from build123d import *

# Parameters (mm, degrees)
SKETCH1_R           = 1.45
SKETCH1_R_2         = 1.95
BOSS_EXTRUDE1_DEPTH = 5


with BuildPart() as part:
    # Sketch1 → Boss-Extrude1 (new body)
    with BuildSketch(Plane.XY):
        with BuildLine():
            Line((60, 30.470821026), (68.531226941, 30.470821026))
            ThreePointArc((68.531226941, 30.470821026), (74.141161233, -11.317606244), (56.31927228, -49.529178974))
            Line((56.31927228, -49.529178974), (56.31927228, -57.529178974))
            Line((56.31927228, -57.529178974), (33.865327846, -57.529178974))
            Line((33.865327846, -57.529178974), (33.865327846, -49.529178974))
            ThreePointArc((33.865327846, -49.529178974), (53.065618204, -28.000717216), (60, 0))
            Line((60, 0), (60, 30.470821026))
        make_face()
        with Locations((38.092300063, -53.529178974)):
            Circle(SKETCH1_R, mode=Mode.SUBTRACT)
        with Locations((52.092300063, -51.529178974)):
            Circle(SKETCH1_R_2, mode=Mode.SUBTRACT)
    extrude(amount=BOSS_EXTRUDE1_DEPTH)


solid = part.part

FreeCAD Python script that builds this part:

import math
import FreeCAD as App
import Part
import Sketcher

doc = App.newDocument("Part")
body = doc.addObject("PartDesign::Body", "Body")

sketch1 = body.newObject("Sketcher::SketchObject", "Sketch")
sketch1.AttachmentSupport = (doc.getObject("XY_Plane"), [""])
sketch1.MapMode = "FlatFace"
sketch1.addGeometry([
    Part.LineSegment(App.Vector(68.531227, 30.470821, 0), App.Vector(60, 30.470821, 0)),
    Part.LineSegment(App.Vector(60, 30.470821, 0), App.Vector(60, 0, 0)),
    Part.ArcOfCircle(Part.Circle(App.Vector(0, 0, 0), App.Vector(0, 0, 1), 60), math.radians(-55.637827), math.radians(0)),
    Part.LineSegment(App.Vector(33.865328, -49.529179, 0), App.Vector(33.865328, -57.529179, 0)),
    Part.LineSegment(App.Vector(33.865328, -57.529179, 0), App.Vector(56.319272, -57.529179, 0)),
    Part.LineSegment(App.Vector(56.319272, -57.529179, 0), App.Vector(56.319272, -49.529179, 0)),
    Part.ArcOfCircle(Part.Circle(App.Vector(0, 0, 0), App.Vector(0, 0, 1), 75), math.radians(-41.329551), math.radians(23.971214)),
    Part.Circle(App.Vector(38.0923, -53.529179, 0), App.Vector(0, 0, 1), 1.45),
    Part.Circle(App.Vector(52.0923, -51.529179, 0), App.Vector(0, 0, 1), 1.95),
], False)
sketch1.addConstraint([
    Sketcher.Constraint("Coincident", 0, 2, 1, 1),
    Sketcher.Constraint("Tangent", 1, 2, 2, 2),
    Sketcher.Constraint("Coincident", 2, 1, 3, 1),
    Sketcher.Constraint("Coincident", 3, 2, 4, 1),
    Sketcher.Constraint("Coincident", 4, 2, 5, 1),
    Sketcher.Constraint("Coincident", 5, 2, 6, 1),
    Sketcher.Constraint("Coincident", 6, 2, 0, 1),
    Sketcher.Constraint("Horizontal", 0),
    Sketcher.Constraint("Vertical", 1),
    Sketcher.Constraint("Vertical", 3),
    Sketcher.Constraint("Horizontal", 4),
    Sketcher.Constraint("Vertical", 5),
    Sketcher.Constraint("Coincident", 2, 3, -1, 1),
    Sketcher.Constraint("Coincident", 6, 3, -1, 1),
    Sketcher.Constraint("Horizontal", 2, 1, 5, 2),
    Sketcher.Constraint("Radius", 2, 60.0),
    Sketcher.Constraint("Radius", 6, 75.0),
    Sketcher.Constraint("Diameter", 7, 2.9),
    Sketcher.Constraint("Diameter", 8, 3.9),
    Sketcher.Constraint("DistanceY", 3, 2, 3, 1, 8.0),
    Sketcher.Constraint("DistanceX", 7, 3, 8, 3, 14.0),
    Sketcher.Constraint("DistanceY", 7, 3, 8, 3, 2.0),
    Sketcher.Constraint("DistanceY", 8, 3, 0, 2, 82.0),
    Sketcher.Constraint("DistanceY", 7, 3, 2, 1, 4.0),
    Sketcher.Constraint("DistanceY", 1, 2, 1, 1, 30.470821),
    Sketcher.Constraint("DistanceX", -1, 1, 7, 3, 38.0923),
])
pad1 = body.newObject("PartDesign::Pad", "Pad")
pad1.Profile = sketch1
pad1.Length = 5

doc.recompute()
